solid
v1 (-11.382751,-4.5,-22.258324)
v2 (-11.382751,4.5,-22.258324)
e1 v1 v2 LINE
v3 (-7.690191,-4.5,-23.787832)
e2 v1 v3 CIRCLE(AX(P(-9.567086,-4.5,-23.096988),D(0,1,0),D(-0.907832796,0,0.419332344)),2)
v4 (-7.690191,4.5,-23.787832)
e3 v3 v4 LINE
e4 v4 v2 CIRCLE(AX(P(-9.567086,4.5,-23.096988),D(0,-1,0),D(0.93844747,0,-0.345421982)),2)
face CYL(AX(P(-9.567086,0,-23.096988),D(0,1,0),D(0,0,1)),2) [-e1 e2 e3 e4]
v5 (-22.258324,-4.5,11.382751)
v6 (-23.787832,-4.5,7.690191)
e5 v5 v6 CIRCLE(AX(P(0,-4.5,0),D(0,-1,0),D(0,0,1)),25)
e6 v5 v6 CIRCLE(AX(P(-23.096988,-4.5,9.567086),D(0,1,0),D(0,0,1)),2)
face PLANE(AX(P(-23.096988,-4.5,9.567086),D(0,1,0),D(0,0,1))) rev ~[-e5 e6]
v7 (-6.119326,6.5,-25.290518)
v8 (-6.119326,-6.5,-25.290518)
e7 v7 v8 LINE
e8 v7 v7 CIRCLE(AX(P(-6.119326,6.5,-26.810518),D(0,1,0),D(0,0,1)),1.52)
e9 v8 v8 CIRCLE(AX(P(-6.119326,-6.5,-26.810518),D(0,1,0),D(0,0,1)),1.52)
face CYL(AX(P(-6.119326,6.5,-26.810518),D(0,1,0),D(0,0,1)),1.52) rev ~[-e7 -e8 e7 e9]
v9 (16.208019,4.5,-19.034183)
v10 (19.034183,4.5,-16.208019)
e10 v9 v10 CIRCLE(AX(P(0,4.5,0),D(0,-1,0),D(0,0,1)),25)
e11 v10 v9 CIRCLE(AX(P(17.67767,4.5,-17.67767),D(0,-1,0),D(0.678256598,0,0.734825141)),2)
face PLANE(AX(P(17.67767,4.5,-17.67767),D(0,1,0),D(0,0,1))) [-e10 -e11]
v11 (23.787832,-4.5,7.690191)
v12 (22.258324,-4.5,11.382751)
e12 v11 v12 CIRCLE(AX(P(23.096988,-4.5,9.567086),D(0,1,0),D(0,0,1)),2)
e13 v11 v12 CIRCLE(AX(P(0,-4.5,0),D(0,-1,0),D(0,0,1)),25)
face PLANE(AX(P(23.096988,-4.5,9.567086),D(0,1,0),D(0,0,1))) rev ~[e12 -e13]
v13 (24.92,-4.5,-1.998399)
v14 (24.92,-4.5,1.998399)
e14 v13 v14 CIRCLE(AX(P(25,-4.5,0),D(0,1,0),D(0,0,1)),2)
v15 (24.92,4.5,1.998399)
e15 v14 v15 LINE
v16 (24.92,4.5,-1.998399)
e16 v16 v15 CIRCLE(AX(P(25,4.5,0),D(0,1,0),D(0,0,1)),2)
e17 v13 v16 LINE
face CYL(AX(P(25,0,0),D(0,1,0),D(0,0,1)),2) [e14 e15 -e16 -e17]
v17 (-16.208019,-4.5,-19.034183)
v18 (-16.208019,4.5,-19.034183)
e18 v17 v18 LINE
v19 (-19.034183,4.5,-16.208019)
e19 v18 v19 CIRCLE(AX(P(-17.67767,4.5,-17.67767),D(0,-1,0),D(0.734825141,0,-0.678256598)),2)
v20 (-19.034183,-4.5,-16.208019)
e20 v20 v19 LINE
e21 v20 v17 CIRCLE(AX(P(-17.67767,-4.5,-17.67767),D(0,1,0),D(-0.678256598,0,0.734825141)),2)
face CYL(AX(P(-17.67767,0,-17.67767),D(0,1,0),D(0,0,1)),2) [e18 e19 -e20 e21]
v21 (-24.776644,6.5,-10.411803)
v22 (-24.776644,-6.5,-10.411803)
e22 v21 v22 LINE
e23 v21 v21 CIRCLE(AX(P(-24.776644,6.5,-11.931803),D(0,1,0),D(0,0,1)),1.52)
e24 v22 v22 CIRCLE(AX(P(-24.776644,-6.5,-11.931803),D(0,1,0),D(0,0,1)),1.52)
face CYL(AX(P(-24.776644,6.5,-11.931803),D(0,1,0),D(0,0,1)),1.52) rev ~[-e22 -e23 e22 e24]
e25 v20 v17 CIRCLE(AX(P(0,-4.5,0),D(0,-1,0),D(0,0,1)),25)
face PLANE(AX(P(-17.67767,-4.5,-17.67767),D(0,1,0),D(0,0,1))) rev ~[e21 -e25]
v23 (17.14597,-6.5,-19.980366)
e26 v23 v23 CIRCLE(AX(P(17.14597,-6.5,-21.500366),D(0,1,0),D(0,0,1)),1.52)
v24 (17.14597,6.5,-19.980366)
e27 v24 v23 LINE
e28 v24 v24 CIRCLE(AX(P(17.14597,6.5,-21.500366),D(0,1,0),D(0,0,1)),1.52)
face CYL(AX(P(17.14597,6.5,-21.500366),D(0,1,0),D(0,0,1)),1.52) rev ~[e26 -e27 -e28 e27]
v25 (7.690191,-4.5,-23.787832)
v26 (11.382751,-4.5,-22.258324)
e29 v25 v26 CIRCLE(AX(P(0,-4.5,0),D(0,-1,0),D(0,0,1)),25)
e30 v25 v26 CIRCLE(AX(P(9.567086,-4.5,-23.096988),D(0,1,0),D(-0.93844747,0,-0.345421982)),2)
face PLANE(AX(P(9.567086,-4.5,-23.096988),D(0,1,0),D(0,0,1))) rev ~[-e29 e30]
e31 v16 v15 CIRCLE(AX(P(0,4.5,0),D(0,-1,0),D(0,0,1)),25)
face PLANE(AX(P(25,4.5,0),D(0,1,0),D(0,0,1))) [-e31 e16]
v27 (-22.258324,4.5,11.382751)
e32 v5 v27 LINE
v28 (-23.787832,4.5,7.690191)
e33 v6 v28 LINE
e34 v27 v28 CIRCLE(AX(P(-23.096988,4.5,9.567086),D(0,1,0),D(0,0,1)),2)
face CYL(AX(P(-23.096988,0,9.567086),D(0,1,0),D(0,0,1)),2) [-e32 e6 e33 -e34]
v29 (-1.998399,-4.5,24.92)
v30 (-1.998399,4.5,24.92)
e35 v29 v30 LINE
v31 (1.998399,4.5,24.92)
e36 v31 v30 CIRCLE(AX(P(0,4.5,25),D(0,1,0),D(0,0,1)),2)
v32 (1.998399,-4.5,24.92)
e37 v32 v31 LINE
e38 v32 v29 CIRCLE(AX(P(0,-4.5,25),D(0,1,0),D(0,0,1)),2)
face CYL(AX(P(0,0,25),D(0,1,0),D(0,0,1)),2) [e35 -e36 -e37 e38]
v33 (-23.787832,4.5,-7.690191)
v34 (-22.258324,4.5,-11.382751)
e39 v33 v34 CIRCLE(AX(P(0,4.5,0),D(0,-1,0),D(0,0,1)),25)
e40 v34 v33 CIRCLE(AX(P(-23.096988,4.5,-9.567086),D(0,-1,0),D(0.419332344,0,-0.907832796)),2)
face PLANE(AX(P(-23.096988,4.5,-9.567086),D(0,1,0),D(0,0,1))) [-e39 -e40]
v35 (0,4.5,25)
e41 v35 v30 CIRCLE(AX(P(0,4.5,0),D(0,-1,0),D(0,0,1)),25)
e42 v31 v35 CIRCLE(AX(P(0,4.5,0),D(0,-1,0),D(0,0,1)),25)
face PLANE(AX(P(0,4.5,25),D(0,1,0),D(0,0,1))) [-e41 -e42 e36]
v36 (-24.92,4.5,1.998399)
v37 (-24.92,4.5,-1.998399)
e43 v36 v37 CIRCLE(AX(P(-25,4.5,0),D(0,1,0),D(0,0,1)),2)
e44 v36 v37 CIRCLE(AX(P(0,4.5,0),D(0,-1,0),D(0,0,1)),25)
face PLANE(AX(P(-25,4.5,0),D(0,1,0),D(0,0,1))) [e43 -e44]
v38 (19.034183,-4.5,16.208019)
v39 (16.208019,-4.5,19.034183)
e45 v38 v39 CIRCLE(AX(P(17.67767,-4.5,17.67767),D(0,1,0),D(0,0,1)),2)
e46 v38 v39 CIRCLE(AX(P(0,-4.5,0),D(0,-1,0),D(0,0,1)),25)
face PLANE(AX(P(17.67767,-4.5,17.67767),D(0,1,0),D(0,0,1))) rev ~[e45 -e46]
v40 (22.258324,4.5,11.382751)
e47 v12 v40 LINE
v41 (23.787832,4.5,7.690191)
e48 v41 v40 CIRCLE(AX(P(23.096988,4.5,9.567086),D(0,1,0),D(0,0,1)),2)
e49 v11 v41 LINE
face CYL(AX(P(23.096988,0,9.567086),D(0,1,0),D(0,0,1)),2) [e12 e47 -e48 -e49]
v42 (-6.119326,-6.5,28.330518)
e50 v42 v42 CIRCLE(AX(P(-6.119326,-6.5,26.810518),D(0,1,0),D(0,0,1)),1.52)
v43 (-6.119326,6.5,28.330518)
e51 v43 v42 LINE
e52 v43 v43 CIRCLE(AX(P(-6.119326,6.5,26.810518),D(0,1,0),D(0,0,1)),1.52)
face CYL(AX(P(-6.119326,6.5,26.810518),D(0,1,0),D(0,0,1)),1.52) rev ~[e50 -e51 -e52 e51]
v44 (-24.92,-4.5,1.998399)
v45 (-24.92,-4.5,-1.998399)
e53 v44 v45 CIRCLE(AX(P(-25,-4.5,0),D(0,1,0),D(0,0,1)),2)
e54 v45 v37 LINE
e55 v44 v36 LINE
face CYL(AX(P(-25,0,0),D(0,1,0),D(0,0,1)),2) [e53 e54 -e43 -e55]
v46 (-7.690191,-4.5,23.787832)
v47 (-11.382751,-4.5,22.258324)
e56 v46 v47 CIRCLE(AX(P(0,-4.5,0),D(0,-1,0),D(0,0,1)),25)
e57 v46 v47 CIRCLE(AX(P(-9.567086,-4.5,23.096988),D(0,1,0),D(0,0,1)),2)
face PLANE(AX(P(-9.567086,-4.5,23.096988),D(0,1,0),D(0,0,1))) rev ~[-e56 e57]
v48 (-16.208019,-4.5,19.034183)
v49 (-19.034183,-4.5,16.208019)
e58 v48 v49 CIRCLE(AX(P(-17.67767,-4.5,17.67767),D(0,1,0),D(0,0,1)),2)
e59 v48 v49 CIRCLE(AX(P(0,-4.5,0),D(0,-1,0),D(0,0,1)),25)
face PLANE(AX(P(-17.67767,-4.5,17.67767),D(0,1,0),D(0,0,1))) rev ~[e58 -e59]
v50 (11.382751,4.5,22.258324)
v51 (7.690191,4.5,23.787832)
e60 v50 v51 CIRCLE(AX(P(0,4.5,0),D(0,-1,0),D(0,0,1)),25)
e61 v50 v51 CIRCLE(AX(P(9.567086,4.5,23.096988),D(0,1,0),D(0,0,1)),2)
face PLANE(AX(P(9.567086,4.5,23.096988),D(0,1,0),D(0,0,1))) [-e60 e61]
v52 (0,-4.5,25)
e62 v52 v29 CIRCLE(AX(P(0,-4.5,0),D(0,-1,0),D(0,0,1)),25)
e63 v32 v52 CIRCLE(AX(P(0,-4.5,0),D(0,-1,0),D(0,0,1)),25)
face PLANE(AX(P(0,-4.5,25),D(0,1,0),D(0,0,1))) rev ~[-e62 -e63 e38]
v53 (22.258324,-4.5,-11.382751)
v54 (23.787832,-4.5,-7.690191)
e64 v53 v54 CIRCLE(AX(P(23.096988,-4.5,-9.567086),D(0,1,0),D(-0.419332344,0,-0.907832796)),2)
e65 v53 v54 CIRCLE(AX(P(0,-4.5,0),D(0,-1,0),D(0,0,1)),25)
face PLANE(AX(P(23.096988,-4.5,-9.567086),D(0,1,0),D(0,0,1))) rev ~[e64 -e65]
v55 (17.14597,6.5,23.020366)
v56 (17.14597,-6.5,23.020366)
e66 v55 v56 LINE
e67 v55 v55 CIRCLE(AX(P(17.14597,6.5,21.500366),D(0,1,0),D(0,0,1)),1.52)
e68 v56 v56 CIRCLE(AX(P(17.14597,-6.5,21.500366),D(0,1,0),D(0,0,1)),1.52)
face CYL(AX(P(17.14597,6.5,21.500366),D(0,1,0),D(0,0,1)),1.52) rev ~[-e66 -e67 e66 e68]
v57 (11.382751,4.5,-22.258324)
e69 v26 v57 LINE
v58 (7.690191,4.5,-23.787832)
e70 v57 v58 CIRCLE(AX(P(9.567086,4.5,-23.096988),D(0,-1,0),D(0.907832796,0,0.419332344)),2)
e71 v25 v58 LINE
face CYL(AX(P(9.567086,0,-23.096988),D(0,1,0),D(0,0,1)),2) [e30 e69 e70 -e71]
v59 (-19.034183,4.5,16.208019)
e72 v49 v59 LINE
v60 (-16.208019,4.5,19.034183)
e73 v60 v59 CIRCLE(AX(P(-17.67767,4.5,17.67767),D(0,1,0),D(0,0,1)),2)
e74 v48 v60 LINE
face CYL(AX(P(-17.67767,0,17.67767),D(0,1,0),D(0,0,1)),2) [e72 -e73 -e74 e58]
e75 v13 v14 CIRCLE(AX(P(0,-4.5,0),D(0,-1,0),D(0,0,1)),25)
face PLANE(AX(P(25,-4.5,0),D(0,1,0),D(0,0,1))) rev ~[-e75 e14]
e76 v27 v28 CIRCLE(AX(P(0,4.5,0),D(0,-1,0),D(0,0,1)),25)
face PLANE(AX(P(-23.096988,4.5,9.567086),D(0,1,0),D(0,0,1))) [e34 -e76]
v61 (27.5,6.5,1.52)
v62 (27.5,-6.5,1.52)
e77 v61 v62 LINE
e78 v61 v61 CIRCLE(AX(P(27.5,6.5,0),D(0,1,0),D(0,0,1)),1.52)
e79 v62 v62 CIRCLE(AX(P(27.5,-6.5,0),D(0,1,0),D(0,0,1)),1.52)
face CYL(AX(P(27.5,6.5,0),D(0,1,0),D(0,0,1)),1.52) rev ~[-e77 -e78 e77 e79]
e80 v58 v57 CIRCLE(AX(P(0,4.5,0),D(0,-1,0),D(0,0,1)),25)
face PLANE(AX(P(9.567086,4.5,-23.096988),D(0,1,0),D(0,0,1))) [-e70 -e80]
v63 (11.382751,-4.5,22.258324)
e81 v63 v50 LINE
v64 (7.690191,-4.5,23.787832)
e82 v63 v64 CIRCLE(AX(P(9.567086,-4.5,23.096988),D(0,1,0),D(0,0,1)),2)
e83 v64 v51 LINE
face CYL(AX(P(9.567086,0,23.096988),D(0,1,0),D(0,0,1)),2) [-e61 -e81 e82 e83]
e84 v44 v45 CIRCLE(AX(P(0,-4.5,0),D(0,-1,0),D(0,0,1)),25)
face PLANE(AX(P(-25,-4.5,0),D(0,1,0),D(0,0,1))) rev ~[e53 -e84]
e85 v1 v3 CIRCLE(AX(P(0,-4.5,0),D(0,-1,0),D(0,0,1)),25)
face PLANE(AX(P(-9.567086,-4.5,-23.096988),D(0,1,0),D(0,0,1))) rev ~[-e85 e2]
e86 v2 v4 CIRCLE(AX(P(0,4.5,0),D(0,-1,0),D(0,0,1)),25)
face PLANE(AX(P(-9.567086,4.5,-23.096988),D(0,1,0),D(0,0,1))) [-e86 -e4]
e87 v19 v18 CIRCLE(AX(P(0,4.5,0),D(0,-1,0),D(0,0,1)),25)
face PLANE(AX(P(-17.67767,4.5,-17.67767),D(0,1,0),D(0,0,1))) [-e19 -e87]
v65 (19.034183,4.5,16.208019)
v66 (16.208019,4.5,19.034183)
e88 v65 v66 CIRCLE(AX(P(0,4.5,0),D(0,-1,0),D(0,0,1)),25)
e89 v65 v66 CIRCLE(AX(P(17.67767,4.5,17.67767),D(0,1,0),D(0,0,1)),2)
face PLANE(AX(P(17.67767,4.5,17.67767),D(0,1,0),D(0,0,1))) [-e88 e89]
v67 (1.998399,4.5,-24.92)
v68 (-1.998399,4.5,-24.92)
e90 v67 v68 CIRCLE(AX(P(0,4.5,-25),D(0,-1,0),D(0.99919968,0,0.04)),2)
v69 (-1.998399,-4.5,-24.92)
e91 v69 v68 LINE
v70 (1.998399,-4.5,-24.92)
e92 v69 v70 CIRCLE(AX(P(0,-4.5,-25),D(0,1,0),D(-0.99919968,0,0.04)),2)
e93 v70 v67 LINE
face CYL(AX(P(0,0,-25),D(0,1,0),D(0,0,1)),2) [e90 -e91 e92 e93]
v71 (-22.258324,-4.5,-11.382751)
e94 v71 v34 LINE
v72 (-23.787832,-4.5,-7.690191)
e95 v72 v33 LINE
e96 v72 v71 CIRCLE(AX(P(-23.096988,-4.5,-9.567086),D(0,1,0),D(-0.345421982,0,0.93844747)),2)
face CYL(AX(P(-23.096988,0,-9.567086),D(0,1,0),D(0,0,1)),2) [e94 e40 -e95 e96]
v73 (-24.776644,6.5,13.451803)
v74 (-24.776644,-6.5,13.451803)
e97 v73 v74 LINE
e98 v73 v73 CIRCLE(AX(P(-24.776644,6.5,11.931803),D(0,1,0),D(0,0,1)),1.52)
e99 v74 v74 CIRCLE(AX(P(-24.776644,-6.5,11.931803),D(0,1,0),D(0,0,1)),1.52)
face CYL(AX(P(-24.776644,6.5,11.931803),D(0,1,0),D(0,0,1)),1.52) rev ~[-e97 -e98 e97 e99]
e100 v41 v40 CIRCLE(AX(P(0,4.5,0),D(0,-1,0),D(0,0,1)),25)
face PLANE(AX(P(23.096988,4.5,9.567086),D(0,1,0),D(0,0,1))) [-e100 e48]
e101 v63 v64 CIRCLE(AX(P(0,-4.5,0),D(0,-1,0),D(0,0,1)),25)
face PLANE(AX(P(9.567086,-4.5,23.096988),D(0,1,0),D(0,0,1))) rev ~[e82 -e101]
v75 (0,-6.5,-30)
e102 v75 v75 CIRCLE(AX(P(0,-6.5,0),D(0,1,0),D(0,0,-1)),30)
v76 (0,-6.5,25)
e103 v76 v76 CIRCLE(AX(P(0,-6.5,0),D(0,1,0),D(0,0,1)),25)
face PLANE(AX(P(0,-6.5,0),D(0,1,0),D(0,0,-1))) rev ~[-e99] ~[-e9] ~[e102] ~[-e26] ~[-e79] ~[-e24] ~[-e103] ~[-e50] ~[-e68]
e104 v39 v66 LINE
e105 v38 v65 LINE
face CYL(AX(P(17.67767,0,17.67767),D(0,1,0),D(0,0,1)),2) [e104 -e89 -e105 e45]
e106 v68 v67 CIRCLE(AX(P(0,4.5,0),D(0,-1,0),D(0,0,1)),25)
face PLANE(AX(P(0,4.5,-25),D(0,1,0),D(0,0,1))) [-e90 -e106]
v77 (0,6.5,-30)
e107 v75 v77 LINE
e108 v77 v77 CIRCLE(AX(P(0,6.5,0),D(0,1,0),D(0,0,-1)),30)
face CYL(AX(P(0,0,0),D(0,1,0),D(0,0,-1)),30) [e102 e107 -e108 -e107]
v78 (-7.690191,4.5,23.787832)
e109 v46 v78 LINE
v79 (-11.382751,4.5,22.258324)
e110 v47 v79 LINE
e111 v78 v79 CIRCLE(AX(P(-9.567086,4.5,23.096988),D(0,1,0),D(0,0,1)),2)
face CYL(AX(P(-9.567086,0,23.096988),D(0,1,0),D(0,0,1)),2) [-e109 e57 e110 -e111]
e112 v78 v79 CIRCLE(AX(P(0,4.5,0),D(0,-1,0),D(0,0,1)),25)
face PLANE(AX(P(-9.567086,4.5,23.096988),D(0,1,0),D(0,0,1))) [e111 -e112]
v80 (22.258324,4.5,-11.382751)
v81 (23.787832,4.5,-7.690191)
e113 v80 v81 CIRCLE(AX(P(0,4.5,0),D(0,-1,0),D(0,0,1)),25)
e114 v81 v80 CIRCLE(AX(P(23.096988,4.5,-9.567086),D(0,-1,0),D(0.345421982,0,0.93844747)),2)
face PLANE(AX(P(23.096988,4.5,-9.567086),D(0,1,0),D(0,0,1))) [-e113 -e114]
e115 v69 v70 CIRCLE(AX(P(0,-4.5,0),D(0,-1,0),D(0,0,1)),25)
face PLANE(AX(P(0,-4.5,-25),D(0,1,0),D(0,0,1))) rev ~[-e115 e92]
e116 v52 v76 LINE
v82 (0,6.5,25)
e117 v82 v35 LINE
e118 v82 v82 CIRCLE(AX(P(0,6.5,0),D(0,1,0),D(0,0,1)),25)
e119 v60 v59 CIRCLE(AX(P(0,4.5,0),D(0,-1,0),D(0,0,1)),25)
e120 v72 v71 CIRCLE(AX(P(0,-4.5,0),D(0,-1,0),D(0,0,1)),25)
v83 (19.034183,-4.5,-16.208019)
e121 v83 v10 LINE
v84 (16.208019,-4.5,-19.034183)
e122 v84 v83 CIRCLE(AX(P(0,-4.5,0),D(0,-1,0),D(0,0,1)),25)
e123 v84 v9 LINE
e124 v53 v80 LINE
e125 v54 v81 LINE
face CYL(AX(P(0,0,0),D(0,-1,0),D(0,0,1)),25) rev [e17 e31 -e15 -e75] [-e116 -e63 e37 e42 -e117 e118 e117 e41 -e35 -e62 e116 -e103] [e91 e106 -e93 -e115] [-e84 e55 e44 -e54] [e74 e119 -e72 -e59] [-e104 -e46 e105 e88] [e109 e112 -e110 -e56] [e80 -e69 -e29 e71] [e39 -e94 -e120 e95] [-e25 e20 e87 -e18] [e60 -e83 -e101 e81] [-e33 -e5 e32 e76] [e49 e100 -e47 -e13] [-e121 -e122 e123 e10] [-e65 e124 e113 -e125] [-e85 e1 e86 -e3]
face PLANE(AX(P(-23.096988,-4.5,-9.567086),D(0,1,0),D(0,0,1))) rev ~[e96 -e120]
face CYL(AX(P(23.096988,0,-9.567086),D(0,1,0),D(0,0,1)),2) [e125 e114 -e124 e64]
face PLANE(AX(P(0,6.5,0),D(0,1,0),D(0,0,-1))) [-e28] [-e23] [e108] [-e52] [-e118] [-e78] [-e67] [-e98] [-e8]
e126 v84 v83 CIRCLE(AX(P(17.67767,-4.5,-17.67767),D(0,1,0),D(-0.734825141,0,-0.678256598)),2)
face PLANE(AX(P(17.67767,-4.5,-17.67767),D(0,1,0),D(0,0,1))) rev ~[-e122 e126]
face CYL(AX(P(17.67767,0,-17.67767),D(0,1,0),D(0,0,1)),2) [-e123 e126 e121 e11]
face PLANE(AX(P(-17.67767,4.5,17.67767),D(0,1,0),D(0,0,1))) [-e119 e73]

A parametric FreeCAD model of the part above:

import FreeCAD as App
import Part
import Sketcher
from FreeCAD import Vector
Q = App.Units.Quantity

doc = App.newDocument("Part")
params = doc.addObject("Spreadsheet::Sheet", "Params")
for row, (alias, value) in enumerate([
    ("sketch1_diameter", "4 mm"),
    ("pad1_length", "9 mm"),
    ("sketch2_diameter", "4 mm"),
    ("pad2_length", "9 mm"),
    ("sketch3_diameter", "4 mm"),
    ("pad3_length", "9 mm"),
    ("sketch4_diameter", "4 mm"),
    ("pad4_length", "9 mm"),
    ("sketch5_diameter", "4 mm"),
    ("pad5_length", "9 mm"),
    ("sketch6_diameter", "4 mm"),
    ("pad6_length", "9 mm"),
    ("sketch7_diameter", "4 mm"),
    ("pad7_length", "9 mm"),
    ("sketch8_diameter", "4 mm"),
    ("pad8_length", "9 mm"),
    ("sketch9_diameter", "4 mm"),
    ("pad9_length", "9 mm"),
    ("sketch10_diameter", "4 mm"),
    ("pad10_length", "9 mm"),
    ("sketch11_diameter", "4 mm"),
    ("pad11_length", "9 mm"),
    ("sketch12_diameter", "4 mm"),
    ("pad12_length", "9 mm"),
    ("sketch13_diameter", "4 mm"),
    ("pad13_length", "9 mm"),
    ("sketch14_diameter", "4 mm"),
    ("pad14_length", "9 mm"),
    ("sketch15_diameter", "4 mm"),
    ("pad15_length", "9 mm"),
    ("sketch16_diameter", "4 mm"),
    ("pad16_length", "9 mm"),
    ("sketch17_diameter", "60 mm"),
    ("sketch17_diameter2", "50 mm"),
    ("pad17_length", "13 mm"),
    ("sketch18_diameter", "3.04 mm"),
], start=1):
    params.set(f"A{row}", alias)
    params.set(f"B{row}", "=" + value)
    params.setAlias(f"B{row}", alias)

body = doc.addObject("PartDesign::Body", "Body")

# Sketch on XZ plane
sketch1 = doc.addObject("Sketcher::SketchObject", "Sketch")
body.addObject(sketch1)
sketch1.AttachmentSupport = (doc.XZ_Plane, [""])
sketch1.MapMode = "FlatFace"
sketch1.addGeometry(Part.Circle(Vector(25, 0, 0), Vector(0, 0, 1), 2), False)
sketch1.addConstraint([
    Sketcher.Constraint("PointOnObject", 0, 3, -1),
    Sketcher.Constraint("Diameter", 0, Q("4 mm")),
    Sketcher.Constraint("DistanceX", -1, 1, 0, 3, Q("25 mm")),
])
sketch1.setExpression("Constraints[1]", "Params.sketch1_diameter")
pad1 = doc.addObject("PartDesign::Pad", "Pad")
body.addObject(pad1)
pad1.Profile = sketch1
pad1.setExpression("Length", "Params.pad1_length")
pad1.Midplane = True
body2 = doc.addObject("PartDesign::Body", "Body001")

# Sketch on XZ plane
sketch2 = doc.addObject("Sketcher::SketchObject", "Sketch001")
body2.addObject(sketch2)
sketch2.AttachmentSupport = (doc.getObject("XZ_Plane001"), [""])
sketch2.MapMode = "FlatFace"
sketch2.addGeometry(Part.Circle(Vector(23.096988, 9.567086, 0), Vector(0, 0, 1), 2), False)
sketch2.addConstraint([
    Sketcher.Constraint("Diameter", 0, Q("4 mm")),
    Sketcher.Constraint("DistanceX", -1, 1, 0, 3, Q("23.096988 mm")),
    Sketcher.Constraint("DistanceY", -1, 1, 0, 3, Q("9.567086 mm")),
])
sketch2.setExpression("Constraints[0]", "Params.sketch2_diameter")
pad2 = doc.addObject("PartDesign::Pad", "Pad001")
body2.addObject(pad2)
pad2.Profile = sketch2
pad2.setExpression("Length", "Params.pad2_length")
pad2.Midplane = True
body3 = doc.addObject("PartDesign::Body", "Body002")

# Sketch on XZ plane
sketch3 = doc.addObject("Sketcher::SketchObject", "Sketch002")
body3.addObject(sketch3)
sketch3.AttachmentSupport = (doc.getObject("XZ_Plane002"), [""])
sketch3.MapMode = "FlatFace"
sketch3.addGeometry(Part.Circle(Vector(17.67767, 17.67767, 0), Vector(0, 0, 1), 2), False)
sketch3.addConstraint([
    Sketcher.Constraint("Diameter", 0, Q("4 mm")),
    Sketcher.Constraint("DistanceX", -1, 1, 0, 3, Q("17.67767 mm")),
    Sketcher.Constraint("DistanceY", -1, 1, 0, 3, Q("17.67767 mm")),
])
sketch3.setExpression("Constraints[0]", "Params.sketch3_diameter")
pad3 = doc.addObject("PartDesign::Pad", "Pad002")
body3.addObject(pad3)
pad3.Profile = sketch3
pad3.setExpression("Length", "Params.pad3_length")
pad3.Midplane = True
body4 = doc.addObject("PartDesign::Body", "Body003")

# Sketch on XZ plane
sketch4 = doc.addObject("Sketcher::SketchObject", "Sketch003")
body4.addObject(sketch4)
sketch4.AttachmentSupport = (doc.getObject("XZ_Plane003"), [""])
sketch4.MapMode = "FlatFace"
sketch4.addGeometry(Part.Circle(Vector(9.567086, 23.096988, 0), Vector(0, 0, 1), 2), False)
sketch4.addConstraint([
    Sketcher.Constraint("Diameter", 0, Q("4 mm")),
    Sketcher.Constraint("DistanceY", -1, 1, 0, 3, Q("23.096988 mm")),
    Sketcher.Constraint("DistanceX", -1, 1, 0, 3, Q("9.567086 mm")),
])
sketch4.setExpression("Constraints[0]", "Params.sketch4_diameter")
pad4 = doc.addObject("PartDesign::Pad", "Pad003")
body4.addObject(pad4)
pad4.Profile = sketch4
pad4.setExpression("Length", "Params.pad4_length")
pad4.Midplane = True
body5 = doc.addObject("PartDesign::Body", "Body004")

# Sketch on XZ plane
sketch5 = doc.addObject("Sketcher::SketchObject", "Sketch004")
body5.addObject(sketch5)
sketch5.AttachmentSupport = (doc.getObject("XZ_Plane004"), [""])
sketch5.MapMode = "FlatFace"
sketch5.addGeometry(Part.Circle(Vector(0, 25, 0), Vector(0, 0, 1), 2), False)
sketch5.addConstraint([
    Sketcher.Constraint("PointOnObject", 0, 3, -2),
    Sketcher.Constraint("Diameter", 0, Q("4 mm")),
    Sketcher.Constraint("DistanceY", -1, 1, 0, 3, Q("25 mm")),
])
sketch5.setExpression("Constraints[1]", "Params.sketch5_diameter")
pad5 = doc.addObject("PartDesign::Pad", "Pad004")
body5.addObject(pad5)
pad5.Profile = sketch5
pad5.setExpression("Length", "Params.pad5_length")
pad5.Midplane = True
body6 = doc.addObject("PartDesign::Body", "Body005")

# Sketch on XZ plane
sketch6 = doc.addObject("Sketcher::SketchObject", "Sketch005")
body6.addObject(sketch6)
sketch6.AttachmentSupport = (doc.getObject("XZ_Plane005"), [""])
sketch6.MapMode = "FlatFace"
sketch6.addGeometry(Part.Circle(Vector(-9.567086, 23.096988, 0), Vector(0, 0, 1), 2), False)
sketch6.addConstraint([
    Sketcher.Constraint("Diameter", 0, Q("4 mm")),
    Sketcher.Constraint("DistanceY", -1, 1, 0, 3, Q("23.096988 mm")),
    Sketcher.Constraint("DistanceX", 0, 3, -1, 1, Q("9.567086 mm")),
])
sketch6.setExpression("Constraints[0]", "Params.sketch6_diameter")
pad6 = doc.addObject("PartDesign::Pad", "Pad005")
body6.addObject(pad6)
pad6.Profile = sketch6
pad6.setExpression("Length", "Params.pad6_length")
pad6.Midplane = True
body7 = doc.addObject("PartDesign::Body", "Body006")

# Sketch on XZ plane
sketch7 = doc.addObject("Sketcher::SketchObject", "Sketch006")
body7.addObject(sketch7)
sketch7.AttachmentSupport = (doc.getObject("XZ_Plane006"), [""])
sketch7.MapMode = "FlatFace"
sketch7.addGeometry(Part.Circle(Vector(-17.67767, 17.67767, 0), Vector(0, 0, 1), 2), False)
sketch7.addConstraint([
    Sketcher.Constraint("Diameter", 0, Q("4 mm")),
    Sketcher.Constraint("DistanceX", 0, 3, -1, 1, Q("17.67767 mm")),
    Sketcher.Constraint("DistanceY", -1, 1, 0, 3, Q("17.67767 mm")),
])
sketch7.setExpression("Constraints[0]", "Params.sketch7_diameter")
pad7 = doc.addObject("PartDesign::Pad", "Pad006")
body7.addObject(pad7)
pad7.Profile = sketch7
pad7.setExpression("Length", "Params.pad7_length")
pad7.Midplane = True
body8 = doc.addObject("PartDesign::Body", "Body007")

# Sketch on XZ plane
sketch8 = doc.addObject("Sketcher::SketchObject", "Sketch007")
body8.addObject(sketch8)
sketch8.AttachmentSupport = (doc.getObject("XZ_Plane007"), [""])
sketch8.MapMode = "FlatFace"
sketch8.addGeometry(Part.Circle(Vector(-23.096988, 9.567086, 0), Vector(0, 0, 1), 2), False)
sketch8.addConstraint([
    Sketcher.Constraint("Diameter", 0, Q("4 mm")),
    Sketcher.Constraint("DistanceX", 0, 3, -1, 1, Q("23.096988 mm")),
    Sketcher.Constraint("DistanceY", -1, 1, 0, 3, Q("9.567086 mm")),
])
sketch8.setExpression("Constraints[0]", "Params.sketch8_diameter")
pad8 = doc.addObject("PartDesign::Pad", "Pad007")
body8.addObject(pad8)
pad8.Profile = sketch8
pad8.setExpression("Length", "Params.pad8_length")
pad8.Midplane = True
body9 = doc.addObject("PartDesign::Body", "Body008")

# Sketch on XZ plane
sketch9 = doc.addObject("Sketcher::SketchObject", "Sketch008")
body9.addObject(sketch9)
sketch9.AttachmentSupport = (doc.getObject("XZ_Plane008"), [""])
sketch9.MapMode = "FlatFace"
sketch9.addGeometry(Part.Circle(Vector(-25, 0, 0), Vector(0, 0, 1), 2), False)
sketch9.addConstraint([
    Sketcher.Constraint("PointOnObject", 0, 3, -1),
    Sketcher.Constraint("Diameter", 0, Q("4 mm")),
    Sketcher.Constraint("DistanceX", 0, 3, -1, 1, Q("25 mm")),
])
sketch9.setExpression("Constraints[1]", "Params.sketch9_diameter")
pad9 = doc.addObject("PartDesign::Pad", "Pad008")
body9.addObject(pad9)
pad9.Profile = sketch9
pad9.setExpression("Length", "Params.pad9_length")
pad9.Midplane = True
body10 = doc.addObject("PartDesign::Body", "Body009")

# Sketch on XZ plane
sketch10 = doc.addObject("Sketcher::SketchObject", "Sketch009")
body10.addObject(sketch10)
sketch10.AttachmentSupport = (doc.getObject("XZ_Plane009"), [""])
sketch10.MapMode = "FlatFace"
sketch10.addGeometry(Part.Circle(Vector(-23.096988, -9.567086, 0), Vector(0, 0, 1), 2), False)
sketch10.addConstraint([
    Sketcher.Constraint("Diameter", 0, Q("4 mm")),
    Sketcher.Constraint("DistanceX", 0, 3, -1, 1, Q("23.096988 mm")),
    Sketcher.Constraint("DistanceY", 0, 3, -1, 1, Q("9.567086 mm")),
])
sketch10.setExpression("Constraints[0]", "Params.sketch10_diameter")
pad10 = doc.addObject("PartDesign::Pad", "Pad009")
body10.addObject(pad10)
pad10.Profile = sketch10
pad10.setExpression("Length", "Params.pad10_length")
pad10.Midplane = True
body11 = doc.addObject("PartDesign::Body", "Body010")

# Sketch on XZ plane
sketch11 = doc.addObject("Sketcher::SketchObject", "Sketch010")
body11.addObject(sketch11)
sketch11.AttachmentSupport = (doc.getObject("XZ_Plane010"), [""])
sketch11.MapMode = "FlatFace"
sketch11.addGeometry(Part.Circle(Vector(-17.67767, -17.67767, 0), Vector(0, 0, 1), 2), False)
sketch11.addConstraint([
    Sketcher.Constraint("Diameter", 0, Q("4 mm")),
    Sketcher.Constraint("DistanceX", 0, 3, -1, 1, Q("17.67767 mm")),
    Sketcher.Constraint("DistanceY", 0, 3, -1, 1, Q("17.67767 mm")),
])
sketch11.setExpression("Constraints[0]", "Params.sketch11_diameter")
pad11 = doc.addObject("PartDesign::Pad", "Pad010")
body11.addObject(pad11)
pad11.Profile = sketch11
pad11.setExpression("Length", "Params.pad11_length")
pad11.Midplane = True
body12 = doc.addObject("PartDesign::Body", "Body011")

# Sketch on XZ plane
sketch12 = doc.addObject("Sketcher::SketchObject", "Sketch011")
body12.addObject(sketch12)
sketch12.AttachmentSupport = (doc.getObject("XZ_Plane011"), [""])
sketch12.MapMode = "FlatFace"
sketch12.addGeometry(Part.Circle(Vector(-9.567086, -23.096988, 0), Vector(0, 0, 1), 2), False)
sketch12.addConstraint([
    Sketcher.Constraint("Diameter", 0, Q("4 mm")),
    Sketcher.Constraint("DistanceY", 0, 3, -1, 1, Q("23.096988 mm")),
    Sketcher.Constraint("DistanceX", 0, 3, -1, 1, Q("9.567086 mm")),
])
sketch12.setExpression("Constraints[0]", "Params.sketch12_diameter")
pad12 = doc.addObject("PartDesign::Pad", "Pad011")
body12.addObject(pad12)
pad12.Profile = sketch12
pad12.setExpression("Length", "Params.pad12_length")
pad12.Midplane = True
body13 = doc.addObject("PartDesign::Body", "Body012")

# Sketch on XZ plane
sketch13 = doc.addObject("Sketcher::SketchObject", "Sketch012")
body13.addObject(sketch13)
sketch13.AttachmentSupport = (doc.getObject("XZ_Plane012"), [""])
sketch13.MapMode = "FlatFace"
sketch13.addGeometry(Part.Circle(Vector(0, -25, 0), Vector(0, 0, 1), 2), False)
sketch13.addConstraint([
    Sketcher.Constraint("PointOnObject", 0, 3, -2),
    Sketcher.Constraint("Diameter", 0, Q("4 mm")),
    Sketcher.Constraint("DistanceY", 0, 3, -1, 1, Q("25 mm")),
])
sketch13.setExpression("Constraints[1]", "Params.sketch13_diameter")
pad13 = doc.addObject("PartDesign::Pad", "Pad012")
body13.addObject(pad13)
pad13.Profile = sketch13
pad13.setExpression("Length", "Params.pad13_length")
pad13.Midplane = True
body14 = doc.addObject("PartDesign::Body", "Body013")

# Sketch on XZ plane
sketch14 = doc.addObject("Sketcher::SketchObject", "Sketch013")
body14.addObject(sketch14)
sketch14.AttachmentSupport = (doc.getObject("XZ_Plane013"), [""])
sketch14.MapMode = "FlatFace"
sketch14.addGeometry(Part.Circle(Vector(9.567086, -23.096988, 0), Vector(0, 0, 1), 2), False)
sketch14.addConstraint([
    Sketcher.Constraint("Diameter", 0, Q("4 mm")),
    Sketcher.Constraint("DistanceY", 0, 3, -1, 1, Q("23.096988 mm")),
    Sketcher.Constraint("DistanceX", -1, 1, 0, 3, Q("9.567086 mm")),
])
sketch14.setExpression("Constraints[0]", "Params.sketch14_diameter")
pad14 = doc.addObject("PartDesign::Pad", "Pad013")
body14.addObject(pad14)
pad14.Profile = sketch14
pad14.setExpression("Length", "Params.pad14_length")
pad14.Midplane = True
body15 = doc.addObject("PartDesign::Body", "Body014")

# Sketch on XZ plane
sketch15 = doc.addObject("Sketcher::SketchObject", "Sketch014")
body15.addObject(sketch15)
sketch15.AttachmentSupport = (doc.getObject("XZ_Plane014"), [""])
sketch15.MapMode = "FlatFace"
sketch15.addGeometry(Part.Circle(Vector(17.67767, -17.67767, 0), Vector(0, 0, 1), 2), False)
sketch15.addConstraint([
    Sketcher.Constraint("Diameter", 0, Q("4 mm")),
    Sketcher.Constraint("DistanceX", -1, 1, 0, 3, Q("17.67767 mm")),
    Sketcher.Constraint("DistanceY", 0, 3, -1, 1, Q("17.67767 mm")),
])
sketch15.setExpression("Constraints[0]", "Params.sketch15_diameter")
pad15 = doc.addObject("PartDesign::Pad", "Pad014")
body15.addObject(pad15)
pad15.Profile = sketch15
pad15.setExpression("Length", "Params.pad15_length")
pad15.Midplane = True
body16 = doc.addObject("PartDesign::Body", "Body015")

# Sketch on XZ plane
sketch16 = doc.addObject("Sketcher::SketchObject", "Sketch015")
body16.addObject(sketch16)
sketch16.AttachmentSupport = (doc.getObject("XZ_Plane015"), [""])
sketch16.MapMode = "FlatFace"
sketch16.addGeometry(Part.Circle(Vector(23.096988, -9.567086, 0), Vector(0, 0, 1), 2), False)
sketch16.addConstraint([
    Sketcher.Constraint("Diameter", 0, Q("4 mm")),
    Sketcher.Constraint("DistanceX", -1, 1, 0, 3, Q("23.096988 mm")),
    Sketcher.Constraint("DistanceY", 0, 3, -1, 1, Q("9.567086 mm")),
])
sketch16.setExpression("Constraints[0]", "Params.sketch16_diameter")
pad16 = doc.addObject("PartDesign::Pad", "Pad015")
body16.addObject(pad16)
pad16.Profile = sketch16
pad16.setExpression("Length", "Params.pad16_length")
pad16.Midplane = True
body.AllowCompound = True
doc.recompute()

boolean = doc.addObject("PartDesign::Boolean", "Boolean")
body.addObject(boolean)
boolean.Type = "Fuse"
boolean.addObjects([body2])
doc.recompute()

boolean2 = doc.addObject("PartDesign::Boolean", "Boolean001")
body.addObject(boolean2)
boolean2.Type = "Fuse"
boolean2.addObjects([body3])
doc.recompute()

boolean3 = doc.addObject("PartDesign::Boolean", "Boolean002")
body.addObject(boolean3)
boolean3.Type = "Fuse"
boolean3.addObjects([body4])
doc.recompute()

boolean4 = doc.addObject("PartDesign::Boolean", "Boolean003")
body.addObject(boolean4)
boolean4.Type = "Fuse"
boolean4.addObjects([body5])
doc.recompute()

boolean5 = doc.addObject("PartDesign::Boolean", "Boolean004")
body.addObject(boolean5)
boolean5.Type = "Fuse"
boolean5.addObjects([body6])
doc.recompute()

boolean6 = doc.addObject("PartDesign::Boolean", "Boolean005")
body.addObject(boolean6)
boolean6.Type = "Fuse"
boolean6.addObjects([body7])
doc.recompute()

boolean7 = doc.addObject("PartDesign::Boolean", "Boolean006")
body.addObject(boolean7)
boolean7.Type = "Fuse"
boolean7.addObjects([body8])
doc.recompute()

boolean8 = doc.addObject("PartDesign::Boolean", "Boolean007")
body.addObject(boolean8)
boolean8.Type = "Fuse"
boolean8.addObjects([body9])
doc.recompute()

boolean9 = doc.addObject("PartDesign::Boolean", "Boolean008")
body.addObject(boolean9)
boolean9.Type = "Fuse"
boolean9.addObjects([body10])
doc.recompute()

boolean10 = doc.addObject("PartDesign::Boolean", "Boolean009")
body.addObject(boolean10)
boolean10.Type = "Fuse"
boolean10.addObjects([body11])
doc.recompute()

boolean11 = doc.addObject("PartDesign::Boolean", "Boolean010")
body.addObject(boolean11)
boolean11.Type = "Fuse"
boolean11.addObjects([body12])
doc.recompute()

boolean12 = doc.addObject("PartDesign::Boolean", "Boolean011")
body.addObject(boolean12)
boolean12.Type = "Fuse"
boolean12.addObjects([body13])
doc.recompute()

boolean13 = doc.addObject("PartDesign::Boolean", "Boolean012")
body.addObject(boolean13)
boolean13.Type = "Fuse"
boolean13.addObjects([body14])
doc.recompute()

boolean14 = doc.addObject("PartDesign::Boolean", "Boolean013")
body.addObject(boolean14)
boolean14.Type = "Fuse"
boolean14.addObjects([body15])
doc.recompute()

boolean15 = doc.addObject("PartDesign::Boolean", "Boolean014")
body.addObject(boolean15)
boolean15.Type = "Fuse"
boolean15.addObjects([body16])

# Sketch on XZ plane
sketch17 = doc.addObject("Sketcher::SketchObject", "Sketch016")
body.addObject(sketch17)
sketch17.AttachmentSupport = (doc.XZ_Plane, [""])
sketch17.MapMode = "FlatFace"
sketch17.addGeometry([
    Part.Circle(Vector(0, 0, 0), Vector(0, 0, 1), 30),
    Part.Circle(Vector(0, 0, 0), Vector(0, 0, 1), 25),
], False)
sketch17.addConstraint([
    Sketcher.Constraint("Coincident", 0, 3, -1, 1),
    Sketcher.Constraint("Coincident", 1, 3, -1, 1),
    Sketcher.Constraint("Diameter", 0, Q("60 mm")),
    Sketcher.Constraint("Diameter", 1, Q("50 mm")),
])
sketch17.setExpression("Constraints[2]", "Params.sketch17_diameter")
sketch17.setExpression("Constraints[3]", "Params.sketch17_diameter2")
pad17 = doc.addObject("PartDesign::Pad", "Pad016")
body.addObject(pad17)
pad17.Profile = sketch17
pad17.setExpression("Length", "Params.pad17_length")
pad17.Midplane = True

# Sketch on XZ plane
sketch18 = doc.addObject("Sketcher::SketchObject", "Sketch017")
body.addObject(sketch18)
sketch18.AttachmentSupport = (doc.XZ_Plane, [""])
sketch18.MapMode = "FlatFace"
sketch18.AttachmentOffset = App.Placement(Vector(0, 0, -6.5), App.Rotation())
sketch18.addGeometry([
    Part.Circle(Vector(27.5, 0, 0), Vector(0, 0, 1), 1.52),  # 0
    Part.Circle(Vector(17.14597, 21.500366, 0), Vector(0, 0, 1), 1.52),  # 1
    Part.Circle(Vector(-6.119326, 26.810518, 0), Vector(0, 0, 1), 1.52),  # 2
    Part.Circle(Vector(-24.776644, 11.931803, 0), Vector(0, 0, 1), 1.52),  # 3
    Part.Circle(Vector(-24.776644, -11.931803, 0), Vector(0, 0, 1), 1.52),  # 4
    Part.Circle(Vector(-6.119326, -26.810518, 0), Vector(0, 0, 1), 1.52),  # 5
    Part.Circle(Vector(17.14597, -21.500366, 0), Vector(0, 0, 1), 1.52),  # 6
], False)
sketch18.addConstraint([
    Sketcher.Constraint("Equal", 0, 1),
    Sketcher.Constraint("Equal", 1, 2),
    Sketcher.Constraint("Equal", 2, 3),
    Sketcher.Constraint("Equal", 3, 4),
    Sketcher.Constraint("Equal", 4, 5),
    Sketcher.Constraint("Equal", 5, 6),
    Sketcher.Constraint("Symmetric", 3, 3, 4, 3, -1),
    Sketcher.Constraint("Symmetric", 2, 3, 5, 3, -1),
    Sketcher.Constraint("Symmetric", 1, 3, 6, 3, -1),
    Sketcher.Constraint("PointOnObject", 0, 3, -1),
    Sketcher.Constraint("Diameter", 0, Q("3.04 mm")),
    Sketcher.Constraint("DistanceX", -1, 1, 0, 3, Q("27.5 mm")),
    Sketcher.Constraint("DistanceX", -1, 1, 1, 3, Q("17.14597 mm")),
    Sketcher.Constraint("DistanceY", 1, 3, 2, 3, Q("5.310152 mm")),
    Sketcher.Constraint("DistanceX", 3, 3, 2, 3, Q("18.657318 mm")),
    Sketcher.Constraint("DistanceY", 4, 3, 2, 3, Q("38.74232 mm")),
    Sketcher.Constraint("DistanceY", 6, 3, 1, 3, Q("43.000732 mm")),
    Sketcher.Constraint("DistanceX", 2, 3, -1, 1, Q("6.119326 mm")),
])
sketch18.setExpression("Constraints[10]", "Params.sketch18_diameter")
pocket1 = doc.addObject("PartDesign::Pocket", "Pocket")
body.addObject(pocket1)
pocket1.Profile = sketch18
pocket1.Type = "ThroughAll"
pocket1.Reversed = True

doc.recompute()
